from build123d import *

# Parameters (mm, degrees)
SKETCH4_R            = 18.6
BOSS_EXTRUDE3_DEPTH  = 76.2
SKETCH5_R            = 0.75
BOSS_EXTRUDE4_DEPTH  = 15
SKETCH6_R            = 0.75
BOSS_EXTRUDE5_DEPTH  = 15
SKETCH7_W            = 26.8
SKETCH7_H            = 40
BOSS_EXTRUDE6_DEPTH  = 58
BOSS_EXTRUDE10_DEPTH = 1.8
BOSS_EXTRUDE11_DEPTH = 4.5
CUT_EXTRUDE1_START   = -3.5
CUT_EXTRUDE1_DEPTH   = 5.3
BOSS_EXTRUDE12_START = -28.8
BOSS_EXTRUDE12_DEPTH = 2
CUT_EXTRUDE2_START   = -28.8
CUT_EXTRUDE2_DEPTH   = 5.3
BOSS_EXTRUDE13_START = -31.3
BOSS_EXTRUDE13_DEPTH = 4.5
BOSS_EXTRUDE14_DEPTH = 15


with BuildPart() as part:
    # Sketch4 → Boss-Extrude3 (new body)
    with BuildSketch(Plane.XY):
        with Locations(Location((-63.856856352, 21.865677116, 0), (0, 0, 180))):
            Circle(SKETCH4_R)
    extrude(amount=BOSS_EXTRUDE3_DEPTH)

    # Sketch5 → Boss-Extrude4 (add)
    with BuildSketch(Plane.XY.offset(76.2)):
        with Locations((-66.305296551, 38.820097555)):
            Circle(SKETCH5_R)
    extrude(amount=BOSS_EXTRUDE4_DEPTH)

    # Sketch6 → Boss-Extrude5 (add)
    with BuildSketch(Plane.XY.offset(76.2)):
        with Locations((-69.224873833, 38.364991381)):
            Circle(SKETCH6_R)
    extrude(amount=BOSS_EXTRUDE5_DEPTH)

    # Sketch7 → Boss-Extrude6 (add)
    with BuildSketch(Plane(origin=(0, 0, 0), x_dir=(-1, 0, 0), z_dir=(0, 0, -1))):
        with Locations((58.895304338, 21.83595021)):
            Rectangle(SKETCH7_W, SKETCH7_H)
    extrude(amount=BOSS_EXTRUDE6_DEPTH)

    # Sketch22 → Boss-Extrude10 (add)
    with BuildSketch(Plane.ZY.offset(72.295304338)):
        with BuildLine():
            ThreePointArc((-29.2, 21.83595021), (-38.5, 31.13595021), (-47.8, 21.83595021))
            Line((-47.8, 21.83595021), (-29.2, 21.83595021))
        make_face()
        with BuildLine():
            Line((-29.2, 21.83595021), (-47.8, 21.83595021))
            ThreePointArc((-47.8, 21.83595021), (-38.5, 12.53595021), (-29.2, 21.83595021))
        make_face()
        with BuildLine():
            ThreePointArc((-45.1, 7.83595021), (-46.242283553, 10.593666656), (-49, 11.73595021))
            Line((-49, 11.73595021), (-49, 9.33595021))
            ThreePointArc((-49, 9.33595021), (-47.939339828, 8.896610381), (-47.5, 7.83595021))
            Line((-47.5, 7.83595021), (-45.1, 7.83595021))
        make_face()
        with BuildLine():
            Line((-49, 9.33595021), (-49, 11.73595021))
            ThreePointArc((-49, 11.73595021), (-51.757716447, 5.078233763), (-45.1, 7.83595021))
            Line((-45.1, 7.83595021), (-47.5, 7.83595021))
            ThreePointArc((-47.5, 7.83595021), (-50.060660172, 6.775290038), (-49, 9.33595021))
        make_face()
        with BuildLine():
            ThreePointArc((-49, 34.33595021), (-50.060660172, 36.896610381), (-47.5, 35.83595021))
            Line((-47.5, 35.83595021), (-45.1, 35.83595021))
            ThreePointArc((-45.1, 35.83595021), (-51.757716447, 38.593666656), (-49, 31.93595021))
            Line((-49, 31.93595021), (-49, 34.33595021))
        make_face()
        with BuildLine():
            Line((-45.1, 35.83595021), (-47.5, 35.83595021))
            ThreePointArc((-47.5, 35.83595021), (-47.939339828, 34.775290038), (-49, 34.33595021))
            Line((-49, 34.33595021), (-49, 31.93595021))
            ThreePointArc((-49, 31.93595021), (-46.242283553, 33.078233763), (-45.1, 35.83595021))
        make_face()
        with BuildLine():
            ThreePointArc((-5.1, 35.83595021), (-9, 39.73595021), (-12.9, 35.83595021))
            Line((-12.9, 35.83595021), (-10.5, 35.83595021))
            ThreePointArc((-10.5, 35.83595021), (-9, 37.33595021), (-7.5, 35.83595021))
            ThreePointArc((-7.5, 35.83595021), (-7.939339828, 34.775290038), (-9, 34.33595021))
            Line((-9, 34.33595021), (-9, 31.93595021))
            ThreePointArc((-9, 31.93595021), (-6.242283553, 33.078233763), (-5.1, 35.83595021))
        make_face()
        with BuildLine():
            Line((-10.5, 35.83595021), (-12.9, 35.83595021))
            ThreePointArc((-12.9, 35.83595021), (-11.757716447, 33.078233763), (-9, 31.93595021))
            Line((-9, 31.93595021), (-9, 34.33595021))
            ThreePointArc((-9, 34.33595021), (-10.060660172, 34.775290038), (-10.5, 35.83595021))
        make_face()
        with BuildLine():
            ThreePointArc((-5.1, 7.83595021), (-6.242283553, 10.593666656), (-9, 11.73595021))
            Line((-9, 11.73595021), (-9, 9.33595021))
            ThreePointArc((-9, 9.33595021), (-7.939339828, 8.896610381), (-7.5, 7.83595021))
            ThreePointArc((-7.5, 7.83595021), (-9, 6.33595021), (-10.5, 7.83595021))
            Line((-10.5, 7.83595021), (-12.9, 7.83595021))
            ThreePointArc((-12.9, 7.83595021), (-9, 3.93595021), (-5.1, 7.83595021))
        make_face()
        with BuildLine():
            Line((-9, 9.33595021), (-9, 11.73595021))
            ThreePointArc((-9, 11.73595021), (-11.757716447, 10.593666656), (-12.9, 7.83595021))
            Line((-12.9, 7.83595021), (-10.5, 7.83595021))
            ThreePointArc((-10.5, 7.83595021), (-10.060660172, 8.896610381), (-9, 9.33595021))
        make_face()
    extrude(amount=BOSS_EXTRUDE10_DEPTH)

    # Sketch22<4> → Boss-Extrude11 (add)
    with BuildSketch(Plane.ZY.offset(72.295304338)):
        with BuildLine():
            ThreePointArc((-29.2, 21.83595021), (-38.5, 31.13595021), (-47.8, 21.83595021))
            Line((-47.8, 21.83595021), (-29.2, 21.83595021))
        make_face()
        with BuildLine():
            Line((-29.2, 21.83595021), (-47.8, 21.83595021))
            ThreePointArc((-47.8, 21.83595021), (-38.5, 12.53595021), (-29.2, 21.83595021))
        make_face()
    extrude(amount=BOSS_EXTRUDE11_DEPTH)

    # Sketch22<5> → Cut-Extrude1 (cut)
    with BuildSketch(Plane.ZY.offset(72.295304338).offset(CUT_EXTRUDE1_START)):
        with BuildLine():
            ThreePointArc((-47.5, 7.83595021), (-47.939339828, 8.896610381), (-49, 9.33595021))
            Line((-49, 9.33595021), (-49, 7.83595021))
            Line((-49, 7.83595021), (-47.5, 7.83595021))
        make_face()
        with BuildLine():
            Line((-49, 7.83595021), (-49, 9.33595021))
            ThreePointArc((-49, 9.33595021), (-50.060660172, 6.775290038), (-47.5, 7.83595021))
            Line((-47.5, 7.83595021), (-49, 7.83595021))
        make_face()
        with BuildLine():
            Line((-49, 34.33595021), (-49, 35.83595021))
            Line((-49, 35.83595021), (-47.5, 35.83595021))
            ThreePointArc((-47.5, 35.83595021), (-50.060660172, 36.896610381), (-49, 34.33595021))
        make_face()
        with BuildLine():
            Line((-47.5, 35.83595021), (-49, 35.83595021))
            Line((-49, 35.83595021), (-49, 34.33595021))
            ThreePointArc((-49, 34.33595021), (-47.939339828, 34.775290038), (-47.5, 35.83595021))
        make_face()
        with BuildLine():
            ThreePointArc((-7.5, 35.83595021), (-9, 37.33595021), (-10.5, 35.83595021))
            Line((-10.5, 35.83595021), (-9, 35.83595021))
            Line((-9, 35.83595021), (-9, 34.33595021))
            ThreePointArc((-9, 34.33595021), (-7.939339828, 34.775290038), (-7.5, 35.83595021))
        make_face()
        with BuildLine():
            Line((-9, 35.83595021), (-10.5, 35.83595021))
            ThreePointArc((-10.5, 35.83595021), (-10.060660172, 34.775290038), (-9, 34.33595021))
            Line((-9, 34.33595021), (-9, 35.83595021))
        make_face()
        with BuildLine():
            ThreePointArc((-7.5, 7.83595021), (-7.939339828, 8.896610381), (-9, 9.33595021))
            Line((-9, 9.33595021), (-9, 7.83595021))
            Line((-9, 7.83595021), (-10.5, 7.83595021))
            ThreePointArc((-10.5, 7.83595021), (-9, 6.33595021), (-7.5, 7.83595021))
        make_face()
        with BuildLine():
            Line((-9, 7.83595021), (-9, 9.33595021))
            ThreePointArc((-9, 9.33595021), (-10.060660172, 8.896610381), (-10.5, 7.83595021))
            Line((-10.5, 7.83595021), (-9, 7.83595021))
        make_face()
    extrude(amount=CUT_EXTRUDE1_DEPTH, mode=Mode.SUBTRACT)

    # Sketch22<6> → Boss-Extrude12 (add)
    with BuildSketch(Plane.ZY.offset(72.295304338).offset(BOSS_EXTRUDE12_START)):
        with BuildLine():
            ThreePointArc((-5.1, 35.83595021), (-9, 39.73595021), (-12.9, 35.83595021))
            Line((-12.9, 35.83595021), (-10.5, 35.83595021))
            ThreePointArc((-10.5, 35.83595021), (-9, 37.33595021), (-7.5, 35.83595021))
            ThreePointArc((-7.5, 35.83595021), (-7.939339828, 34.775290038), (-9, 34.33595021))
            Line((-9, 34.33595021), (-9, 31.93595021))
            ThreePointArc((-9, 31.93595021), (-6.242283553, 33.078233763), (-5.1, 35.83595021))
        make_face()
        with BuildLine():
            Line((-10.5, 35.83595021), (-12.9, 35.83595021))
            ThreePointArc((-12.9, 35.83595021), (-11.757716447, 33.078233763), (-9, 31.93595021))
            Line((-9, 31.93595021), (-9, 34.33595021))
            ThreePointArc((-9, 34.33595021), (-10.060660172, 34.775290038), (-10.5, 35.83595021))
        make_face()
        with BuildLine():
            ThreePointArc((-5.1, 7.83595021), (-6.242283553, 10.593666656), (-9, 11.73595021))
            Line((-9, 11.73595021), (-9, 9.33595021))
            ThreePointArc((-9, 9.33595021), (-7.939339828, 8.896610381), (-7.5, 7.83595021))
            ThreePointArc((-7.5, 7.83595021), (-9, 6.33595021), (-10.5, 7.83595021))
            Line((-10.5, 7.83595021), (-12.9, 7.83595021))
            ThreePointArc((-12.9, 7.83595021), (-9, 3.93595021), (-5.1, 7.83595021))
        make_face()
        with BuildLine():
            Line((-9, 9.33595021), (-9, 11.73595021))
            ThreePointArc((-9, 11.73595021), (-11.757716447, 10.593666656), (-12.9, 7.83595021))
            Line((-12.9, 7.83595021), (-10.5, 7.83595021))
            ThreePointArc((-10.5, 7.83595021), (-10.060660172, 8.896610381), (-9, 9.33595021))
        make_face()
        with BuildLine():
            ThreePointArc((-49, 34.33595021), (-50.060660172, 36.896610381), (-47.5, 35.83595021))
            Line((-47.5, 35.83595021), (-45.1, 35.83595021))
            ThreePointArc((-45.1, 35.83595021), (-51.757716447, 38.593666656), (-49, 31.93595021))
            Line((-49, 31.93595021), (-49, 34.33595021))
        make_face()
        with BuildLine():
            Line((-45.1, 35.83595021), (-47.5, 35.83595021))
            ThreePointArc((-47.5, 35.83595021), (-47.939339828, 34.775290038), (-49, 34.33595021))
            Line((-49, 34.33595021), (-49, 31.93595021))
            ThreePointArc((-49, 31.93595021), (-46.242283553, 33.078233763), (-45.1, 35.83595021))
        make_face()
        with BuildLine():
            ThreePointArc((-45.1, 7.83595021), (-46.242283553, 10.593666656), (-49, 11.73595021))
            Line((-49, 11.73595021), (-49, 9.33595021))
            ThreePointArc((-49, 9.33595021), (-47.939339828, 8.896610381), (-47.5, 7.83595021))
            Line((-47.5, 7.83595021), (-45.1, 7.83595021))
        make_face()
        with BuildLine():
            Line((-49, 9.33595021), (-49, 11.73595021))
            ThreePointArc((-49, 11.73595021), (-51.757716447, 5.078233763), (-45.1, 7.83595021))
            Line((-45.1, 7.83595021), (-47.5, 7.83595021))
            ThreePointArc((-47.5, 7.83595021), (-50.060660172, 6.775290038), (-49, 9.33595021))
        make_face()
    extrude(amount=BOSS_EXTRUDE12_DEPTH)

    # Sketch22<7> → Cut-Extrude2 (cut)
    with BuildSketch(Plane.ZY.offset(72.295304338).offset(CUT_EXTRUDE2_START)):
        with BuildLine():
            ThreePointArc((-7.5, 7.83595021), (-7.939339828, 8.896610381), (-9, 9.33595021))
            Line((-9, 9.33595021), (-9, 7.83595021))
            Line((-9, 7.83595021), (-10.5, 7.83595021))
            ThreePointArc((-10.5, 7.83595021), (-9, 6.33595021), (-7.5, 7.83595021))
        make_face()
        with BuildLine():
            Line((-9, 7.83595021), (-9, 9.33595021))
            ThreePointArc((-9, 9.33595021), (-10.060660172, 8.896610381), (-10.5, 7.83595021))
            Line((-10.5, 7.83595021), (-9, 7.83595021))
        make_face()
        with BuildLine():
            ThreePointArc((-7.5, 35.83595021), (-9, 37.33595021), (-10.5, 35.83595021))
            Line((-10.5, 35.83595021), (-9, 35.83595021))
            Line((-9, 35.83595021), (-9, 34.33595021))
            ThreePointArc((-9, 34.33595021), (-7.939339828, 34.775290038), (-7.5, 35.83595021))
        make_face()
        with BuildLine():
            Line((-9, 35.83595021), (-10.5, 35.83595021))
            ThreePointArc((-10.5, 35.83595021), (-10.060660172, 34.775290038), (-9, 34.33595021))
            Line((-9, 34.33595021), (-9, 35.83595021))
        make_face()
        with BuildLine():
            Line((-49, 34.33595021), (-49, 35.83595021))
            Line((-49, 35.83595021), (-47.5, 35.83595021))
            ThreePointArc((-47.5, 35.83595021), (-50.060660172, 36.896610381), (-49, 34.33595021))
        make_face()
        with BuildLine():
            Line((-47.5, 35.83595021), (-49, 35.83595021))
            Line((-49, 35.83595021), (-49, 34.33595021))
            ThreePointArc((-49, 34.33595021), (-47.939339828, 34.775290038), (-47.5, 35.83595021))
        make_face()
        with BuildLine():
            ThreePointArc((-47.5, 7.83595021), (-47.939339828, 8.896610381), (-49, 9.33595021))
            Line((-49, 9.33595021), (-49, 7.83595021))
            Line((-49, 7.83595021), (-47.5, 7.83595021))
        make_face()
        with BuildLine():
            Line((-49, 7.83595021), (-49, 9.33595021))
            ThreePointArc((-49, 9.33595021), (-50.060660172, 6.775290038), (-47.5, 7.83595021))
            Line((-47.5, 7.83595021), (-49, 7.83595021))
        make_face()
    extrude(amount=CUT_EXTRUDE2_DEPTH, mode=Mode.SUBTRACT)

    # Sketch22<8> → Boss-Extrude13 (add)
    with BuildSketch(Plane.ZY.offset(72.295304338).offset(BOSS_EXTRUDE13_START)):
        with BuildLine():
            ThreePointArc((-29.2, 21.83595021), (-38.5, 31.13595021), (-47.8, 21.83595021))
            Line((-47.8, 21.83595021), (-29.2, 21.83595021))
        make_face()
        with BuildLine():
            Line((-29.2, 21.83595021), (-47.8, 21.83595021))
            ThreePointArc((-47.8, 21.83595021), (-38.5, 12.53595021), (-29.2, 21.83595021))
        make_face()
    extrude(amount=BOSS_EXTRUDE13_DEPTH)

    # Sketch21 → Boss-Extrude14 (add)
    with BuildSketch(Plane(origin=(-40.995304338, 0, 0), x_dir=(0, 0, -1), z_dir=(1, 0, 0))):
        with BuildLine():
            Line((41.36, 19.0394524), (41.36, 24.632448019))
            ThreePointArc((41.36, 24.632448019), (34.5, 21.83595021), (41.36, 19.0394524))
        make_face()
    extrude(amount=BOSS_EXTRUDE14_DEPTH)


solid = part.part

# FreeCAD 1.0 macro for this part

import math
import FreeCAD as App
import Part
import Sketcher
from FreeCAD import Vector

doc = App.newDocument("Part")
body = doc.addObject("PartDesign::Body", "Body")

sketch1 = doc.addObject("Sketcher::SketchObject", "Sketch")
body.addObject(sketch1)
sketch1.AttachmentSupport = (doc.XY_Plane, [""])
sketch1.MapMode = "FlatFace"
sketch1.addGeometry(Part.Circle(Vector(-64, 22, 0), Vector(0, 0, 1), 19), False)
sketch1.addConstraint(Sketcher.Constraint("Diameter", 0, 37.2))
sketch1.addConstraint(Sketcher.Constraint("DistanceX", 0, 3, -1, 1, 63.856856))
sketch1.addConstraint(Sketcher.Constraint("DistanceY", -1, 1, 0, 3, 21.865677))
pad1 = doc.addObject("PartDesign::Pad", "Pad")
body.addObject(pad1)
pad1.Profile = sketch1
pad1.Length = 76.2

sketch2 = doc.addObject("Sketcher::SketchObject", "Sketch001")
body.addObject(sketch2)
sketch2.AttachmentSupport = (doc.XY_Plane, [""])
sketch2.MapMode = "FlatFace"
sketch2.AttachmentOffset = App.Placement(Vector(0, 0, 76.2), App.Rotation())
sketch2.addGeometry(Part.Circle(Vector(-66.3, 38.8, 0), Vector(0, 0, 1), 0.8), False)
sketch2.addConstraint(Sketcher.Constraint("Diameter", 0, 1.5))
sketch2.addConstraint(Sketcher.Constraint("DistanceX", 0, 3, -1, 1, 66.305297))
sketch2.addConstraint(Sketcher.Constraint("DistanceY", -1, 1, 0, 3, 38.820098))
pad2 = doc.addObject("PartDesign::Pad", "Pad001")
body.addObject(pad2)
pad2.Profile = sketch2
pad2.Length = 15

sketch3 = doc.addObject("Sketcher::SketchObject", "Sketch002")
body.addObject(sketch3)
sketch3.AttachmentSupport = (doc.XY_Plane, [""])
sketch3.MapMode = "FlatFace"
sketch3.AttachmentOffset = App.Placement(Vector(0, 0, 76.2), App.Rotation())
sketch3.addGeometry(Part.Circle(Vector(-69.2, 38.4, 0), Vector(0, 0, 1), 0.8), False)
sketch3.addConstraint(Sketcher.Constraint("Diameter", 0, 1.5))
sketch3.addConstraint(Sketcher.Constraint("DistanceY", -1, 1, 0, 3, 38.364991))
sketch3.addConstraint(Sketcher.Constraint("DistanceX", 0, 3, -1, 1, 69.224874))
pad3 = doc.addObject("PartDesign::Pad", "Pad002")
body.addObject(pad3)
pad3.Profile = sketch3
pad3.Length = 15

sketch4 = doc.addObject("Sketcher::SketchObject", "Sketch003")
body.addObject(sketch4)
sketch4.AttachmentSupport = (doc.XY_Plane, [""])
sketch4.MapMode = "FlatFace"
sketch4.addGeometry(Part.LineSegment(Vector(-45, 42, 0), Vector(-45, 2, 0)), False)
sketch4.addGeometry(Part.LineSegment(Vector(-45, 2, 0), Vector(-72, 2, 0)), False)
sketch4.addGeometry(Part.LineSegment(Vector(-72, 2, 0), Vector(-72, 42, 0)), False)
sketch4.addGeometry(Part.LineSegment(Vector(-72, 42, 0), Vector(-45, 42, 0)), False)
sketch4.addConstraint(Sketcher.Constraint("Coincident", 0, 2, 1, 1))
sketch4.addConstraint(Sketcher.Constraint("Coincident", 1, 2, 2, 1))
sketch4.addConstraint(Sketcher.Constraint("Coincident", 2, 2, 3, 1))
sketch4.addConstraint(Sketcher.Constraint("Coincident", 3, 2, 0, 1))
sketch4.addConstraint(Sketcher.Constraint("Vertical", 0))
sketch4.addConstraint(Sketcher.Constraint("Horizontal", 1))
sketch4.addConstraint(Sketcher.Constraint("Vertical", 2))
sketch4.addConstraint(Sketcher.Constraint("Horizontal", 3))
sketch4.addConstraint(Sketcher.Constraint("DistanceY", 0, 2, 0, 1, 40.0))
sketch4.addConstraint(Sketcher.Constraint("DistanceX", 1, 2, 1, 1, 26.8))
sketch4.addConstraint(Sketcher.Constraint("DistanceY", -1, 1, 0, 2, 1.83595))
sketch4.addConstraint(Sketcher.Constraint("DistanceX", 0, 2, -1, 1, 45.495304))
pad4 = doc.addObject("PartDesign::Pad", "Pad003")
body.addObject(pad4)
pad4.Profile = sketch4
pad4.Length = 58
pad4.Reversed = True

sketch5 = doc.addObject("Sketcher::SketchObject", "Sketch004")
body.addObject(sketch5)
sketch5.AttachmentSupport = (doc.YZ_Plane, [""])
sketch5.MapMode = "FlatFace"
sketch5.AttachmentOffset = App.Placement(Vector(0, 0, -72.295304), App.Rotation())
sketch5.addGeometry(Part.Circle(Vector(21.8, -38.5, 0), Vector(0, 0, 1), 9.3), False)
sketch5.addGeometry(Part.ArcOfCircle(Part.Circle(Vector(7.8, -49, 0), Vector(0, 0, 1), 3.9), math.radians(0), math.radians(90)), False)
sketch5.addGeometry(Part.ArcOfCircle(Part.Circle(Vector(7.8, -49, 0), Vector(0, 0, 1), 3.9), math.radians(90), math.radians(360)), False)
sketch5.addGeometry(Part.ArcOfCircle(Part.Circle(Vector(7.8, -49, 0), Vector(0, 0, 1), 1.5), math.radians(0), math.radians(90)), False)
sketch5.addGeometry(Part.ArcOfCircle(Part.Circle(Vector(7.8, -49, 0), Vector(0, 0, 1), 1.5), math.radians(90), math.radians(360)), False)
sketch5.addGeometry(Part.ArcOfCircle(Part.Circle(Vector(35.8, -49, 0), Vector(0, 0, 1), 3.9), math.radians(180), math.radians(450)), False)
sketch5.addGeometry(Part.ArcOfCircle(Part.Circle(Vector(35.8, -49, 0), Vector(0, 0, 1), 3.9), math.radians(90), math.radians(180)), False)
sketch5.addGeometry(Part.ArcOfCircle(Part.Circle(Vector(35.8, -49, 0), Vector(0, 0, 1), 1.5), math.radians(180), math.radians(450)), False)
sketch5.addGeometry(Part.ArcOfCircle(Part.Circle(Vector(35.8, -49, 0), Vector(0, 0, 1), 1.5), math.radians(90), math.radians(180)), False)
sketch5.addGeometry(Part.ArcOfCircle(Part.Circle(Vector(35.8, -9, 0), Vector(0, 0, 1), 3.9), math.radians(-90), math.radians(90)), False)
sketch5.addGeometry(Part.ArcOfCircle(Part.Circle(Vector(35.8, -9, 0), Vector(0, 0, 1), 3.9), math.radians(180), math.radians(270)), False)
sketch5.addGeometry(Part.ArcOfCircle(Part.Circle(Vector(35.8, -9, 0), Vector(0, 0, 1), 3.9), math.radians(90), math.radians(180)), False)
sketch5.addGeometry(Part.ArcOfCircle(Part.Circle(Vector(35.8, -9, 0), Vector(0, 0, 1), 1.5), math.radians(90), math.radians(180)), False)
sketch5.addGeometry(Part.ArcOfCircle(Part.Circle(Vector(35.8, -9, 0), Vector(0, 0, 1), 1.5), math.radians(180), math.radians(270)), False)
sketch5.addGeometry(Part.ArcOfCircle(Part.Circle(Vector(35.8, -9, 0), Vector(0, 0, 1), 1.5), math.radians(-90), math.radians(90)), False)
sketch5.addGeometry(Part.ArcOfCircle(Part.Circle(Vector(7.8, -9, 0), Vector(0, 0, 1), 3.9), math.radians(0), math.radians(90)), False)
sketch5.addGeometry(Part.ArcOfCircle(Part.Circle(Vector(7.8, -9, 0), Vector(0, 0, 1), 3.9), math.radians(-90), math.radians(0)), False)
sketch5.addGeometry(Part.ArcOfCircle(Part.Circle(Vector(7.8, -9, 0), Vector(0, 0, 1), 3.9), math.radians(90), math.radians(270)), False)
sketch5.addGeometry(Part.ArcOfCircle(Part.Circle(Vector(7.8, -9, 0), Vector(0, 0, 1), 1.5), math.radians(90), math.radians(270)), False)
sketch5.addGeometry(Part.ArcOfCircle(Part.Circle(Vector(7.8, -9, 0), Vector(0, 0, 1), 1.5), math.radians(-90), math.radians(0)), False)
sketch5.addGeometry(Part.ArcOfCircle(Part.Circle(Vector(7.8, -9, 0), Vector(0, 0, 1), 1.5), math.radians(0), math.radians(90)), False)
sketch5.addConstraint(Sketcher.Constraint("Tangent", 1, 1, 2, 2))
sketch5.addConstraint(Sketcher.Constraint("Coincident", 2, 1, 1, 2))
sketch5.addConstraint(Sketcher.Constraint("Tangent", 3, 1, 4, 2))
sketch5.addConstraint(Sketcher.Constraint("Coincident", 4, 1, 3, 2))
sketch5.addConstraint(Sketcher.Constraint("Tangent", 5, 1, 6, 2))
sketch5.addConstraint(Sketcher.Constraint("Coincident", 6, 1, 5, 2))
sketch5.addConstraint(Sketcher.Constraint("Tangent", 7, 1, 8, 2))
sketch5.addConstraint(Sketcher.Constraint("Coincident", 8, 1, 7, 2))
sketch5.addConstraint(Sketcher.Constraint("Tangent", 9, 1, 10, 2))
sketch5.addConstraint(Sketcher.Constraint("Tangent", 10, 1, 11, 2))
sketch5.addConstraint(Sketcher.Constraint("Tangent", 11, 1, 9, 2))
sketch5.addConstraint(Sketcher.Constraint("Tangent", 12, 2, 13, 1))
sketch5.addConstraint(Sketcher.Constraint("Tangent", 13, 2, 14, 1))
sketch5.addConstraint(Sketcher.Constraint("Tangent", 14, 2, 12, 1))
sketch5.addConstraint(Sketcher.Constraint("Tangent", 15, 1, 16, 2))
sketch5.addConstraint(Sketcher.Constraint("Tangent", 16, 1, 17, 2))
sketch5.addConstraint(Sketcher.Constraint("Tangent", 17, 1, 15, 2))
sketch5.addConstraint(Sketcher.Constraint("Tangent", 18, 2, 19, 1))
sketch5.addConstraint(Sketcher.Constraint("Tangent", 19, 2, 20, 1))
sketch5.addConstraint(Sketcher.Constraint("Tangent", 20, 2, 18, 1))
sketch5.addConstraint(Sketcher.Constraint("Coincident", 3, 3, 1, 3))
sketch5.addConstraint(Sketcher.Constraint("Coincident", 7, 3, 5, 3))
sketch5.addConstraint(Sketcher.Constraint("Coincident", 12, 3, 9, 3))
sketch5.addConstraint(Sketcher.Constraint("Coincident", 18, 3, 15, 3))
sketch5.addConstraint(Sketcher.Constraint("Equal", 2, 5))
sketch5.addConstraint(Sketcher.Constraint("Equal", 4, 7))
sketch5.addConstraint(Sketcher.Constraint("Equal", 6, 9))
sketch5.addConstraint(Sketcher.Constraint("Equal", 8, 12))
sketch5.addConstraint(Sketcher.Constraint("Equal", 11, 15))
sketch5.addConstraint(Sketcher.Constraint("Equal", 14, 18))
sketch5.addConstraint(Sketcher.Constraint("Horizontal", 4, 3, 5, 3))
sketch5.addConstraint(Sketcher.Constraint("Horizontal", 14, 3, 15, 3))
sketch5.addConstraint(Sketcher.Constraint("Horizontal", 8, 3, 1, 1))
sketch5.addConstraint(Sketcher.Constraint("Horizontal", 1, 1, 3, 1))
sketch5.addConstraint(Sketcher.Constraint("Horizontal", 3, 1, 5, 1))
sketch5.addConstraint(Sketcher.Constraint("Horizontal", 5, 1, 7, 1))
sketch5.addConstraint(Sketcher.Constraint("Horizontal", 20, 3, 10, 1))
sketch5.addConstraint(Sketcher.Constraint("Horizontal", 10, 1, 12, 2))
sketch5.addConstraint(Sketcher.Constraint("Horizontal", 12, 2, 15, 1))
sketch5.addConstraint(Sketcher.Constraint("Horizontal", 15, 1, 19, 2))
sketch5.addConstraint(Sketcher.Constraint("Vertical", 8, 3, 9, 3))
sketch5.addConstraint(Sketcher.Constraint("Vertical", 4, 3, 15, 3))
sketch5.addConstraint(Sketcher.Constraint("Vertical", 20, 3, 2, 1))
sketch5.addConstraint(Sketcher.Constraint("Vertical", 2, 1, 4, 1))
sketch5.addConstraint(Sketcher.Constraint("Vertical", 14, 3, 6, 1))
sketch5.addConstraint(Sketcher.Constraint("Vertical", 6, 1, 8, 1))
sketch5.addConstraint(Sketcher.Constraint("Vertical", 8, 1, 9, 1))
sketch5.addConstraint(Sketcher.Constraint("Vertical", 9, 1, 11, 1))
sketch5.addConstraint(Sketcher.Constraint("Vertical", 11, 1, 13, 2))
sketch5.addConstraint(Sketcher.Constraint("Vertical", 13, 2, 14, 2))
sketch5.addConstraint(Sketcher.Constraint("Vertical", 4, 1, 16, 1))
sketch5.addConstraint(Sketcher.Constraint("Vertical", 16, 1, 17, 1))
sketch5.addConstraint(Sketcher.Constraint("Vertical", 17, 1, 18, 2))
sketch5.addConstraint(Sketcher.Constraint("Vertical", 18, 2, 20, 2))
sketch5.addConstraint(Sketcher.Constraint("Diameter", 0, 18.6))
sketch5.addConstraint(Sketcher.Constraint("Radius", 1, 3.9))
sketch5.addConstraint(Sketcher.Constraint("Radius", 3, 1.5))
sketch5.addConstraint(Sketcher.Constraint("DistanceY", 1, 3, -1, 1, 49.0))
sketch5.addConstraint(Sketcher.Constraint("DistanceY", 9, 3, -1, 1, 9.0))
sketch5.addConstraint(Sketcher.Constraint("DistanceX", 1, 3, 0, 3, 14.0))
sketch5.addConstraint(Sketcher.Constraint("DistanceX", 0, 3, 5, 3, 14.0))
sketch5.addConstraint(Sketcher.Constraint("DistanceY", 0, 3, -1, 1, 38.5))
sketch5.addConstraint(Sketcher.Constraint("DistanceX", -1, 1, 0, 3, 21.83595))
pad5 = doc.addObject("PartDesign::Pad", "Pad004")
body.addObject(pad5)
pad5.Profile = sketch5
pad5.Length = 1.8
pad5.Reversed = True

sketch6 = doc.addObject("Sketcher::SketchObject", "Sketch005")
body.addObject(sketch6)
sketch6.AttachmentSupport = (doc.YZ_Plane, [""])
sketch6.MapMode = "FlatFace"
sketch6.AttachmentOffset = App.Placement(Vector(0, 0, -72.295304), App.Rotation())
sketch6.addGeometry(Part.Circle(Vector(22, -38, 0), Vector(0, 0, 1), 9), False)
sketch6.addConstraint(Sketcher.Constraint("Diameter", 0, 18.6))
sketch6.addConstraint(Sketcher.Constraint("DistanceY", 0, 3, -1, 1, 38.5))
sketch6.addConstraint(Sketcher.Constraint("DistanceX", -1, 1, 0, 3, 21.83595))
pad6 = doc.addObject("PartDesign::Pad", "Pad005")
body.addObject(pad6)
pad6.Profile = sketch6
pad6.Length = 4.5
pad6.Reversed = True

sketch7 = doc.addObject("Sketcher::SketchObject", "Sketch006")
body.addObject(sketch7)
sketch7.AttachmentSupport = (doc.YZ_Plane, [""])
sketch7.MapMode = "FlatFace"
sketch7.AttachmentOffset = App.Placement(Vector(0, 0, -68.795304), App.Rotation())
sketch7.addGeometry(Part.ArcOfCircle(Part.Circle(Vector(7.8, -49, 0), Vector(0, 0, 1), 1.5), math.radians(0), math.radians(90)), False)
sketch7.addGeometry(Part.ArcOfCircle(Part.Circle(Vector(7.8, -49, 0), Vector(0, 0, 1), 1.5), math.radians(90), math.radians(360)), False)
sketch7.addGeometry(Part.ArcOfCircle(Part.Circle(Vector(35.8, -49, 0), Vector(0, 0, 1), 1.5), math.radians(180), math.radians(450)), False)
sketch7.addGeometry(Part.ArcOfCircle(Part.Circle(Vector(35.8, -49, 0), Vector(0, 0, 1), 1.5), math.radians(90), math.radians(180)), False)
sketch7.addGeometry(Part.ArcOfCircle(Part.Circle(Vector(35.8, -9, 0), Vector(0, 0, 1), 1.5), math.radians(-90), math.radians(90)), False)
sketch7.addGeometry(Part.ArcOfCircle(Part.Circle(Vector(35.8, -9, 0), Vector(0, 0, 1), 1.5), math.radians(180), math.radians(270)), False)
sketch7.addGeometry(Part.ArcOfCircle(Part.Circle(Vector(35.8, -9, 0), Vector(0, 0, 1), 1.5), math.radians(90), math.radians(180)), False)
sketch7.addGeometry(Part.ArcOfCircle(Part.Circle(Vector(7.8, -9, 0), Vector(0, 0, 1), 1.5), math.radians(0), math.radians(90)), False)
sketch7.addGeometry(Part.ArcOfCircle(Part.Circle(Vector(7.8, -9, 0), Vector(0, 0, 1), 1.5), math.radians(-90), math.radians(0)), False)
sketch7.addGeometry(Part.ArcOfCircle(Part.Circle(Vector(7.8, -9, 0), Vector(0, 0, 1), 1.5), math.radians(90), math.radians(270)), False)
sketch7.addConstraint(Sketcher.Constraint("Tangent", 0, 1, 1, 2))
sketch7.addConstraint(Sketcher.Constraint("Coincident", 1, 1, 0, 2))
sketch7.addConstraint(Sketcher.Constraint("Tangent", 2, 1, 3, 2))
sketch7.addConstraint(Sketcher.Constraint("Coincident", 3, 1, 2, 2))
sketch7.addConstraint(Sketcher.Constraint("Tangent", 4, 1, 5, 2))
sketch7.addConstraint(Sketcher.Constraint("Tangent", 5, 1, 6, 2))
sketch7.addConstraint(Sketcher.Constraint("Tangent", 6, 1, 4, 2))
sketch7.addConstraint(Sketcher.Constraint("Tangent", 7, 1, 8, 2))
sketch7.addConstraint(Sketcher.Constraint("Tangent", 8, 1, 9, 2))
sketch7.addConstraint(Sketcher.Constraint("Tangent", 9, 1, 7, 2))
sketch7.addConstraint(Sketcher.Constraint("Equal", 1, 2))
sketch7.addConstraint(Sketcher.Constraint("Equal", 3, 4))
sketch7.addConstraint(Sketcher.Constraint("Equal", 6, 7))
sketch7.addConstraint(Sketcher.Constraint("Horizontal", 1, 3, 2, 3))
sketch7.addConstraint(Sketcher.Constraint("Horizontal", 6, 3, 7, 3))
sketch7.addConstraint(Sketcher.Constraint("Horizontal", 3, 3, 0, 1))
sketch7.addConstraint(Sketcher.Constraint("Horizontal", 0, 1, 2, 1))
sketch7.addConstraint(Sketcher.Constraint("Horizontal", 9, 3, 5, 1))
sketch7.addConstraint(Sketcher.Constraint("Horizontal", 5, 1, 7, 1))
sketch7.addConstraint(Sketcher.Constraint("Vertical", 3, 3, 4, 3))
sketch7.addConstraint(Sketcher.Constraint("Vertical", 1, 3, 7, 3))
sketch7.addConstraint(Sketcher.Constraint("Vertical", 9, 3, 1, 1))
sketch7.addConstraint(Sketcher.Constraint("Vertical", 6, 3, 3, 1))
sketch7.addConstraint(Sketcher.Constraint("Vertical", 3, 1, 4, 1))
sketch7.addConstraint(Sketcher.Constraint("Vertical", 4, 1, 6, 1))
sketch7.addConstraint(Sketcher.Constraint("Vertical", 1, 1, 8, 1))
sketch7.addConstraint(Sketcher.Constraint("Vertical", 8, 1, 9, 1))
sketch7.addConstraint(Sketcher.Constraint("Radius", 0, 1.5))
sketch7.addConstraint(Sketcher.Constraint("DistanceY", 0, 3, -1, 1, 49.0))
sketch7.addConstraint(Sketcher.Constraint("DistanceY", 4, 3, -1, 1, 9.0))
sketch7.addConstraint(Sketcher.Constraint("DistanceX", 1, 3, 2, 3, 28.0))
sketch7.addConstraint(Sketcher.Constraint("DistanceX", -1, 1, 0, 3, 7.83595))
pocket1 = doc.addObject("PartDesign::Pocket", "Pocket")
body.addObject(pocket1)
pocket1.Profile = sketch7
pocket1.Length = 5.3

sketch8 = doc.addObject("Sketcher::SketchObject", "Sketch007")
body.addObject(sketch8)
sketch8.AttachmentSupport = (doc.YZ_Plane, [""])
sketch8.MapMode = "FlatFace"
sketch8.AttachmentOffset = App.Placement(Vector(0, 0, -43.495304), App.Rotation())
sketch8.addGeometry(Part.ArcOfCircle(Part.Circle(Vector(35.8, -9, 0), Vector(0, 0, 1), 3.9), math.radians(-90), math.radians(90)), False)
sketch8.addGeometry(Part.ArcOfCircle(Part.Circle(Vector(35.8, -9, 0), Vector(0, 0, 1), 3.9), math.radians(180), math.radians(270)), False)
sketch8.addGeometry(Part.ArcOfCircle(Part.Circle(Vector(35.8, -9, 0), Vector(0, 0, 1), 3.9), math.radians(90), math.radians(180)), False)
sketch8.addGeometry(Part.ArcOfCircle(Part.Circle(Vector(35.8, -9, 0), Vector(0, 0, 1), 1.5), math.radians(90), math.radians(180)), False)
sketch8.addGeometry(Part.ArcOfCircle(Part.Circle(Vector(35.8, -9, 0), Vector(0, 0, 1), 1.5), math.radians(180), math.radians(270)), False)
sketch8.addGeometry(Part.ArcOfCircle(Part.Circle(Vector(35.8, -9, 0), Vector(0, 0, 1), 1.5), math.radians(-90), math.radians(90)), False)
sketch8.addGeometry(Part.ArcOfCircle(Part.Circle(Vector(7.8, -9, 0), Vector(0, 0, 1), 3.9), math.radians(0), math.radians(90)), False)
sketch8.addGeometry(Part.ArcOfCircle(Part.Circle(Vector(7.8, -9, 0), Vector(0, 0, 1), 3.9), math.radians(-90), math.radians(0)), False)
sketch8.addGeometry(Part.ArcOfCircle(Part.Circle(Vector(7.8, -9, 0), Vector(0, 0, 1), 3.9), math.radians(90), math.radians(270)), False)
sketch8.addGeometry(Part.ArcOfCircle(Part.Circle(Vector(7.8, -9, 0), Vector(0, 0, 1), 1.5), math.radians(90), math.radians(270)), False)
sketch8.addGeometry(Part.ArcOfCircle(Part.Circle(Vector(7.8, -9, 0), Vector(0, 0, 1), 1.5), math.radians(-90), math.radians(0)), False)
sketch8.addGeometry(Part.ArcOfCircle(Part.Circle(Vector(7.8, -9, 0), Vector(0, 0, 1), 1.5), math.radians(0), math.radians(90)), False)
sketch8.addGeometry(Part.ArcOfCircle(Part.Circle(Vector(35.8, -49, 0), Vector(0, 0, 1), 3.9), math.radians(180), math.radians(450)), False)
sketch8.addGeometry(Part.ArcOfCircle(Part.Circle(Vector(35.8, -49, 0), Vector(0, 0, 1), 3.9), math.radians(90), math.radians(180)), False)
sketch8.addGeometry(Part.ArcOfCircle(Part.Circle(Vector(35.8, -49, 0), Vector(0, 0, 1), 1.5), math.radians(180), math.radians(450)), False)
sketch8.addGeometry(Part.ArcOfCircle(Part.Circle(Vector(35.8, -49, 0), Vector(0, 0, 1), 1.5), math.radians(90), math.radians(180)), False)
sketch8.addGeometry(Part.ArcOfCircle(Part.Circle(Vector(7.8, -49, 0), Vector(0, 0, 1), 3.9), math.radians(0), math.radians(90)), False)
sketch8.addGeometry(Part.ArcOfCircle(Part.Circle(Vector(7.8, -49, 0), Vector(0, 0, 1), 3.9), math.radians(90), math.radians(360)), False)
sketch8.addGeometry(Part.ArcOfCircle(Part.Circle(Vector(7.8, -49, 0), Vector(0, 0, 1), 1.5), math.radians(0), math.radians(90)), False)
sketch8.addGeometry(Part.ArcOfCircle(Part.Circle(Vector(7.8, -49, 0), Vector(0, 0, 1), 1.5), math.radians(90), math.radians(360)), False)
sketch8.addConstraint(Sketcher.Constraint("Tangent", 0, 1, 1, 2))
sketch8.addConstraint(Sketcher.Constraint("Tangent", 1, 1, 2, 2))
sketch8.addConstraint(Sketcher.Constraint("Tangent", 2, 1, 0, 2))
sketch8.addConstraint(Sketcher.Constraint("Tangent", 3, 2, 4, 1))
sketch8.addConstraint(Sketcher.Constraint("Tangent", 4, 2, 5, 1))
sketch8.addConstraint(Sketcher.Constraint("Tangent", 5, 2, 3, 1))
sketch8.addConstraint(Sketcher.Constraint("Tangent", 6, 1, 7, 2))
sketch8.addConstraint(Sketcher.Constraint("Tangent", 7, 1, 8, 2))
sketch8.addConstraint(Sketcher.Constraint("Tangent", 8, 1, 6, 2))
sketch8.addConstraint(Sketcher.Constraint("Tangent", 9, 2, 10, 1))
sketch8.addConstraint(Sketcher.Constraint("Tangent", 10, 2, 11, 1))
sketch8.addConstraint(Sketcher.Constraint("Tangent", 11, 2, 9, 1))
sketch8.addConstraint(Sketcher.Constraint("Tangent", 12, 1, 13, 2))
sketch8.addConstraint(Sketcher.Constraint("Coincident", 13, 1, 12, 2))
sketch8.addConstraint(Sketcher.Constraint("Tangent", 14, 1, 15, 2))
sketch8.addConstraint(Sketcher.Constraint("Coincident", 15, 1, 14, 2))
sketch8.addConstraint(Sketcher.Constraint("Tangent", 16, 1, 17, 2))
sketch8.addConstraint(Sketcher.Constraint("Coincident", 17, 1, 16, 2))
sketch8.addConstraint(Sketcher.Constraint("Tangent", 18, 1, 19, 2))
sketch8.addConstraint(Sketcher.Constraint("Coincident", 19, 1, 18, 2))
sketch8.addConstraint(Sketcher.Constraint("Coincident", 3, 3, 0, 3))
sketch8.addConstraint(Sketcher.Constraint("Coincident", 9, 3, 6, 3))
sketch8.addConstraint(Sketcher.Constraint("Coincident", 14, 3, 12, 3))
sketch8.addConstraint(Sketcher.Constraint("Coincident", 18, 3, 16, 3))
sketch8.addConstraint(Sketcher.Constraint("Equal", 2, 6))
sketch8.addConstraint(Sketcher.Constraint("Equal", 5, 9))
sketch8.addConstraint(Sketcher.Constraint("Equal", 8, 12))
sketch8.addConstraint(Sketcher.Constraint("Equal", 11, 14))
sketch8.addConstraint(Sketcher.Constraint("Equal", 13, 16))
sketch8.addConstraint(Sketcher.Constraint("Equal", 15, 18))
sketch8.addConstraint(Sketcher.Constraint("Horizontal", 5, 3, 6, 3))
sketch8.addConstraint(Sketcher.Constraint("Horizontal", 15, 3, 16, 3))
sketch8.addConstraint(Sketcher.Constraint("Horizontal", 11, 3, 1, 1))
sketch8.addConstraint(Sketcher.Constraint("Horizontal", 1, 1, 3, 2))
sketch8.addConstraint(Sketcher.Constraint("Horizontal", 3, 2, 6, 1))
sketch8.addConstraint(Sketcher.Constraint("Horizontal", 6, 1, 10, 2))
sketch8.addConstraint(Sketcher.Constraint("Horizontal", 19, 3, 12, 1))
sketch8.addConstraint(Sketcher.Constraint("Horizontal", 12, 1, 14, 1))
sketch8.addConstraint(Sketcher.Constraint("Horizontal", 14, 1, 16, 1))
sketch8.addConstraint(Sketcher.Constraint("Horizontal", 16, 1, 18, 1))
sketch8.addConstraint(Sketcher.Constraint("Vertical", 5, 3, 12, 3))
sketch8.addConstraint(Sketcher.Constraint("Vertical", 11, 3, 16, 3))
sketch8.addConstraint(Sketcher.Constraint("Vertical", 15, 3, 0, 1))
sketch8.addConstraint(Sketcher.Constraint("Vertical", 0, 1, 2, 1))
sketch8.addConstraint(Sketcher.Constraint("Vertical", 2, 1, 4, 2))
sketch8.addConstraint(Sketcher.Constraint("Vertical", 4, 2, 5, 2))
sketch8.addConstraint(Sketcher.Constraint("Vertical", 19, 3, 7, 1))
sketch8.addConstraint(Sketcher.Constraint("Vertical", 7, 1, 8, 1))
sketch8.addConstraint(Sketcher.Constraint("Vertical", 8, 1, 9, 2))
sketch8.addConstraint(Sketcher.Constraint("Vertical", 9, 2, 11, 2))
sketch8.addConstraint(Sketcher.Constraint("Vertical", 5, 2, 13, 1))
sketch8.addConstraint(Sketcher.Constraint("Vertical", 13, 1, 15, 1))
sketch8.addConstraint(Sketcher.Constraint("Vertical", 11, 2, 17, 1))
sketch8.addConstraint(Sketcher.Constraint("Vertical", 17, 1, 19, 1))
sketch8.addConstraint(Sketcher.Constraint("Radius", 0, 3.9))
sketch8.addConstraint(Sketcher.Constraint("Radius", 3, 1.5))
sketch8.addConstraint(Sketcher.Constraint("DistanceY", 0, 3, -1, 1, 9.0))
sketch8.addConstraint(Sketcher.Constraint("DistanceY", 12, 3, -1, 1, 49.0))
sketch8.addConstraint(Sketcher.Constraint("DistanceX", 6, 3, 1, 3, 28.0))
sketch8.addConstraint(Sketcher.Constraint("DistanceX", -1, 1, 0, 3, 35.83595))
pad7 = doc.addObject("PartDesign::Pad", "Pad006")
body.addObject(pad7)
pad7.Profile = sketch8
pad7.Length = 2
pad7.Reversed = True

sketch9 = doc.addObject("Sketcher::SketchObject", "Sketch008")
body.addObject(sketch9)
sketch9.AttachmentSupport = (doc.YZ_Plane, [""])
sketch9.MapMode = "FlatFace"
sketch9.AttachmentOffset = App.Placement(Vector(0, 0, -43.495304), App.Rotation())
sketch9.addGeometry(Part.ArcOfCircle(Part.Circle(Vector(7.8, -9, 0), Vector(0, 0, 1), 1.5), math.radians(0), math.radians(90)), False)
sketch9.addGeometry(Part.ArcOfCircle(Part.Circle(Vector(7.8, -9, 0), Vector(0, 0, 1), 1.5), math.radians(-90), math.radians(0)), False)
sketch9.addGeometry(Part.ArcOfCircle(Part.Circle(Vector(7.8, -9, 0), Vector(0, 0, 1), 1.5), math.radians(90), math.radians(270)), False)
sketch9.addGeometry(Part.ArcOfCircle(Part.Circle(Vector(35.8, -9, 0), Vector(0, 0, 1), 1.5), math.radians(-90), math.radians(90)), False)
sketch9.addGeometry(Part.ArcOfCircle(Part.Circle(Vector(35.8, -9, 0), Vector(0, 0, 1), 1.5), math.radians(180), math.radians(270)), False)
sketch9.addGeometry(Part.ArcOfCircle(Part.Circle(Vector(35.8, -9, 0), Vector(0, 0, 1), 1.5), math.radians(90), math.radians(180)), False)
sketch9.addGeometry(Part.ArcOfCircle(Part.Circle(Vector(35.8, -49, 0), Vector(0, 0, 1), 1.5), math.radians(180), math.radians(450)), False)
sketch9.addGeometry(Part.ArcOfCircle(Part.Circle(Vector(35.8, -49, 0), Vector(0, 0, 1), 1.5), math.radians(90), math.radians(180)), False)
sketch9.addGeometry(Part.ArcOfCircle(Part.Circle(Vector(7.8, -49, 0), Vector(0, 0, 1), 1.5), math.radians(0), math.radians(90)), False)
sketch9.addGeometry(Part.ArcOfCircle(Part.Circle(Vector(7.8, -49, 0), Vector(0, 0, 1), 1.5), math.radians(90), math.radians(360)), False)
sketch9.addConstraint(Sketcher.Constraint("Tangent", 0, 1, 1, 2))
sketch9.addConstraint(Sketcher.Constraint("Tangent", 1, 1, 2, 2))
sketch9.addConstraint(Sketcher.Constraint("Tangent", 2, 1, 0, 2))
sketch9.addConstraint(Sketcher.Constraint("Tangent", 3, 1, 4, 2))
sketch9.addConstraint(Sketcher.Constraint("Tangent", 4, 1, 5, 2))
sketch9.addConstraint(Sketcher.Constraint("Tangent", 5, 1, 3, 2))
sketch9.addConstraint(Sketcher.Constraint("Tangent", 6, 1, 7, 2))
sketch9.addConstraint(Sketcher.Constraint("Coincident", 7, 1, 6, 2))
sketch9.addConstraint(Sketcher.Constraint("Tangent", 8, 1, 9, 2))
sketch9.addConstraint(Sketcher.Constraint("Coincident", 9, 1, 8, 2))
sketch9.addConstraint(Sketcher.Constraint("Equal", 2, 3))
sketch9.addConstraint(Sketcher.Constraint("Equal", 5, 6))
sketch9.addConstraint(Sketcher.Constraint("Equal", 7, 8))
sketch9.addConstraint(Sketcher.Constraint("Horizontal", 2, 3, 3, 3))
sketch9.addConstraint(Sketcher.Constraint("Horizontal", 7, 3, 8, 3))
sketch9.addConstraint(Sketcher.Constraint("Horizontal", 5, 3, 0, 1))
sketch9.addConstraint(Sketcher.Constraint("Horizontal", 0, 1, 4, 1))
sketch9.addConstraint(Sketcher.Constraint("Horizontal", 9, 3, 6, 1))
sketch9.addConstraint(Sketcher.Constraint("Horizontal", 6, 1, 8, 1))
sketch9.addConstraint(Sketcher.Constraint("Vertical", 5, 3, 6, 3))
sketch9.addConstraint(Sketcher.Constraint("Vertical", 2, 3, 8, 3))
sketch9.addConstraint(Sketcher.Constraint("Vertical", 9, 3, 1, 1))
sketch9.addConstraint(Sketcher.Constraint("Vertical", 1, 1, 2, 1))
sketch9.addConstraint(Sketcher.Constraint("Vertical", 7, 3, 3, 1))
sketch9.addConstraint(Sketcher.Constraint("Vertical", 3, 1, 5, 1))
sketch9.addConstraint(Sketcher.Constraint("Vertical", 5, 1, 7, 1))
sketch9.addConstraint(Sketcher.Constraint("Vertical", 2, 1, 9, 1))
sketch9.addConstraint(Sketcher.Constraint("Radius", 0, 1.5))
sketch9.addConstraint(Sketcher.Constraint("DistanceY", 0, 3, -1, 1, 9.0))
sketch9.addConstraint(Sketcher.Constraint("DistanceY", 6, 3, -1, 1, 49.0))
sketch9.addConstraint(Sketcher.Constraint("DistanceX", 2, 3, 3, 3, 28.0))
sketch9.addConstraint(Sketcher.Constraint("DistanceX", -1, 1, 0, 3, 7.83595))
pocket2 = doc.addObject("PartDesign::Pocket", "Pocket001")
body.addObject(pocket2)
pocket2.Profile = sketch9
pocket2.Length = 5.3

sketch10 = doc.addObject("Sketcher::SketchObject", "Sketch009")
body.addObject(sketch10)
sketch10.AttachmentSupport = (doc.YZ_Plane, [""])
sketch10.MapMode = "FlatFace"
sketch10.AttachmentOffset = App.Placement(Vector(0, 0, -40.995304), App.Rotation())
sketch10.addGeometry(Part.Circle(Vector(22, -38, 0), Vector(0, 0, 1), 9), False)
sketch10.addConstraint(Sketcher.Constraint("Diameter", 0, 18.6))
sketch10.addConstraint(Sketcher.Constraint("DistanceY", 0, 3, -1, 1, 38.5))
sketch10.addConstraint(Sketcher.Constraint("DistanceX", -1, 1, 0, 3, 21.83595))
pad8 = doc.addObject("PartDesign::Pad", "Pad007")
body.addObject(pad8)
pad8.Profile = sketch10
pad8.Length = 4.5
pad8.Reversed = True

sketch11 = doc.addObject("Sketcher::SketchObject", "Sketch010")
body.addObject(sketch11)
sketch11.AttachmentSupport = (doc.YZ_Plane, [""])
sketch11.MapMode = "FlatFace"
sketch11.AttachmentOffset = App.Placement(Vector(0, 0, -40.995304), App.Rotation())
sketch11.addGeometry(Part.LineSegment(Vector(19, -41.4, 0), Vector(24.6, -41.4, 0)), False)
sketch11.addGeometry(Part.ArcOfCircle(Part.Circle(Vector(21.8, -38.5, 0), Vector(0, 0, 1), 4), math.radians(-46), math.radians(226)), False)
sketch11.addConstraint(Sketcher.Constraint("Coincident", 0, 1, 1, 2))
sketch11.addConstraint(Sketcher.Constraint("Coincident", 1, 1, 0, 2))
sketch11.addConstraint(Sketcher.Constraint("Horizontal", 0))
sketch11.addConstraint(Sketcher.Constraint("Radius", 1, 4.0))
sketch11.addConstraint(Sketcher.Constraint("DistanceY", 1, 3, -1, 1, 38.5))
sketch11.addConstraint(Sketcher.Constraint("DistanceY", 0, 1, -1, 1, 41.36))
sketch11.addConstraint(Sketcher.Constraint("DistanceX", -1, 1, 1, 3, 21.83595))
pad9 = doc.addObject("PartDesign::Pad", "Pad008")
body.addObject(pad9)
pad9.Profile = sketch11
pad9.Length = 15

doc.recompute()
